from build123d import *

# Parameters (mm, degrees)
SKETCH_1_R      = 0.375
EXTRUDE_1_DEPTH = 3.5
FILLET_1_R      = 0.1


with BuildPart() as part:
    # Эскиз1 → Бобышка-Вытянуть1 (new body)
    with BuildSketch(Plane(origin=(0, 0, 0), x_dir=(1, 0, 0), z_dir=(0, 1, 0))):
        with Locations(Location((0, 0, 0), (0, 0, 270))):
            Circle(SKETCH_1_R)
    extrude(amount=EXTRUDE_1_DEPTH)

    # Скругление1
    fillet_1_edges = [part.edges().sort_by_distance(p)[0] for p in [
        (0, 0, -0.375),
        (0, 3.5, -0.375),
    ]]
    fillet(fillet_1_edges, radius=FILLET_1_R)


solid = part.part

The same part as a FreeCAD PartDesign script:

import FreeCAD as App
import Part
import Sketcher

V = App.Vector
Q = App.Units.Quantity


def edges_at(feature, points):
    """Names of the edges that pass closest to the given points."""
    edges = feature.Shape.Edges
    near = lambda p: min(range(len(edges)), key=lambda i: edges[i].distToShape(Part.Vertex(*p))[0])
    return sorted({f"Edge{near(p) + 1}" for p in points})

doc = App.newDocument("Part")
body = doc.addObject("PartDesign::Body", "Body")

sketch1 = doc.addObject("Sketcher::SketchObject", "Sketch")
body.addObject(sketch1)
sketch1.AttachmentSupport = (doc.XZ_Plane, [""])
sketch1.MapMode = "FlatFace"
sketch1.addGeometry(Part.Circle(V(0, 0, 0), V(0, 0, 1), 0.38), False)
sketch1.addConstraint(Sketcher.Constraint("Coincident", 0, 3, -1, 1))
sketch1.addConstraint(Sketcher.Constraint("Diameter", 0, Q("0.75 mm")))
pad1 = doc.addObject("PartDesign::Pad", "Pad")
body.addObject(pad1)
pad1.Profile = sketch1
pad1.Length = 3.5
pad1.Reversed = True
doc.recompute()

fillet = doc.addObject("PartDesign::Fillet", "Fillet")
body.addObject(fillet)
fillet.Base = (pad1, edges_at(pad1, [(0, 0, -0.375), (0, 3.5, -0.375)]))
fillet.Radius = 0.1

doc.recompute()
